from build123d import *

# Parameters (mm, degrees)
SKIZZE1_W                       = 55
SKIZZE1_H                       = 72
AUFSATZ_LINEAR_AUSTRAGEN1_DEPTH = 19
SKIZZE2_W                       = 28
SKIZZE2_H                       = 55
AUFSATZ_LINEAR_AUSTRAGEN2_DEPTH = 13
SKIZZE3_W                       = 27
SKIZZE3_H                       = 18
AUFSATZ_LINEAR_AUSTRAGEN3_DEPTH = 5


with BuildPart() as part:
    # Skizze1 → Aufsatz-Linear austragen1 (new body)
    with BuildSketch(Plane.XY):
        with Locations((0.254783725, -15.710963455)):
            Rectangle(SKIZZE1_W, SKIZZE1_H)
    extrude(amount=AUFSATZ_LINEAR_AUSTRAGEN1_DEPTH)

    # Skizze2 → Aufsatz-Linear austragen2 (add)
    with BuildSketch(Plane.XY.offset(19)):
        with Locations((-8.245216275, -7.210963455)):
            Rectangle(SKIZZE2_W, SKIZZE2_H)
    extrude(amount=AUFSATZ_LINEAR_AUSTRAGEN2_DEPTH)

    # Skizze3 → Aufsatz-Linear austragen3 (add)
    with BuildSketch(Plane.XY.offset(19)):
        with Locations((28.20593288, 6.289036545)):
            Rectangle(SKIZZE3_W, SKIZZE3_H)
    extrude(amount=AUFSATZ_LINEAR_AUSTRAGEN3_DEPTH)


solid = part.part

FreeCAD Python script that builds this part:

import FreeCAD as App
import Part
import Sketcher
from FreeCAD import Vector
Q = App.Units.Quantity

doc = App.newDocument("Part")
body = doc.addObject("PartDesign::Body", "Body")

# Sketch on XY plane
sketch1 = body.newObject("Sketcher::SketchObject", "Sketch")
sketch1.AttachmentSupport = (doc.getObject("XY_Plane"), [""])
sketch1.MapMode = "FlatFace"
sketch1.addGeometry([
    Part.LineSegment(Vector(-27.245216, 20.289037, 0), Vector(-27.245216, -51.710963, 0)),
    Part.LineSegment(Vector(-27.245216, -51.710963, 0), Vector(27.754784, -51.710963, 0)),
    Part.LineSegment(Vector(27.754784, -51.710963, 0), Vector(27.754784, 20.289037, 0)),
    Part.LineSegment(Vector(27.754784, 20.289037, 0), Vector(-27.245216, 20.289037, 0)),
], False)
sketch1.addConstraint([
    Sketcher.Constraint("Coincident", 0, 2, 1, 1),
    Sketcher.Constraint("Coincident", 1, 2, 2, 1),
    Sketcher.Constraint("Coincident", 2, 2, 3, 1),
    Sketcher.Constraint("Coincident", 3, 2, 0, 1),
    Sketcher.Constraint("Vertical", 0),
    Sketcher.Constraint("Horizontal", 1),
    Sketcher.Constraint("Vertical", 2),
    Sketcher.Constraint("Horizontal", 3),
    Sketcher.Constraint("DistanceX", 1, 1, 1, 2, Q("55 mm")),
    Sketcher.Constraint("DistanceY", 0, 2, 0, 1, Q("72 mm")),
    Sketcher.Constraint("DistanceX", 0, 2, -1, 1, Q("27.245216 mm")),
    Sketcher.Constraint("DistanceY", 0, 2, -1, 1, Q("51.710963 mm")),
])
pad1 = body.newObject("PartDesign::Pad", "Pad")
pad1.Profile = sketch1
pad1.Length = 19

# Sketch on XY plane
sketch2 = body.newObject("Sketcher::SketchObject", "Sketch001")
sketch2.AttachmentSupport = (doc.getObject("XY_Plane"), [""])
sketch2.MapMode = "FlatFace"
sketch2.AttachmentOffset = App.Placement(Vector(0, 0, 19), App.Rotation())
sketch2.addGeometry([
    Part.LineSegment(Vector(-22.245216, 20.289037, 0), Vector(-22.245216, -34.710963, 0)),
    Part.LineSegment(Vector(-22.245216, -34.710963, 0), Vector(5.754784, -34.710963, 0)),
    Part.LineSegment(Vector(5.754784, -34.710963, 0), Vector(5.754784, 20.289037, 0)),
    Part.LineSegment(Vector(5.754784, 20.289037, 0), Vector(-22.245216, 20.289037, 0)),
], False)
sketch2.addConstraint([
    Sketcher.Constraint("Coincident", 0, 2, 1, 1),
    Sketcher.Constraint("Coincident", 1, 2, 2, 1),
    Sketcher.Constraint("Coincident", 2, 2, 3, 1),
    Sketcher.Constraint("Coincident", 3, 2, 0, 1),
    Sketcher.Constraint("Vertical", 0),
    Sketcher.Constraint("Horizontal", 1),
    Sketcher.Constraint("Vertical", 2),
    Sketcher.Constraint("Horizontal", 3),
    Sketcher.Constraint("DistanceX", 1, 1, 1, 2, Q("28 mm")),
    Sketcher.Constraint("DistanceY", 0, 2, 0, 1, Q("55 mm")),
    Sketcher.Constraint("DistanceX", 0, 2, -1, 1, Q("22.245216 mm")),
    Sketcher.Constraint("DistanceY", 0, 2, -1, 1, Q("34.710963 mm")),
])
pad2 = body.newObject("PartDesign::Pad", "Pad001")
pad2.Profile = sketch2
pad2.Length = 13

# Sketch on XY plane
sketch3 = body.newObject("Sketcher::SketchObject", "Sketch002")
sketch3.AttachmentSupport = (doc.getObject("XY_Plane"), [""])
sketch3.MapMode = "FlatFace"
sketch3.AttachmentOffset = App.Placement(Vector(0, 0, 19), App.Rotation())
sketch3.addGeometry([
    Part.LineSegment(Vector(14.705933, 15.289037, 0), Vector(14.705933, -2.710963, 0)),
    Part.LineSegment(Vector(14.705933, -2.710963, 0), Vector(41.705933, -2.710963, 0)),
    Part.LineSegment(Vector(41.705933, -2.710963, 0), Vector(41.705933, 15.289037, 0)),
    Part.LineSegment(Vector(41.705933, 15.289037, 0), Vector(14.705933, 15.289037, 0)),
], False)
sketch3.addConstraint([
    Sketcher.Constraint("Coincident", 0, 2, 1, 1),
    Sketcher.Constraint("Coincident", 1, 2, 2, 1),
    Sketcher.Constraint("Coincident", 2, 2, 3, 1),
    Sketcher.Constraint("Coincident", 3, 2, 0, 1),
    Sketcher.Constraint("Vertical", 0),
    Sketcher.Constraint("Horizontal", 1),
    Sketcher.Constraint("Vertical", 2),
    Sketcher.Constraint("Horizontal", 3),
    Sketcher.Constraint("DistanceX", 1, 1, 1, 2, Q("27 mm")),
    Sketcher.Constraint("DistanceY", 0, 2, 0, 1, Q("18 mm")),
    Sketcher.Constraint("DistanceX", -1, 1, 0, 2, Q("14.705933 mm")),
    Sketcher.Constraint("DistanceY", 0, 2, -1, 1, Q("2.710963 mm")),
])
pad3 = body.newObject("PartDesign::Pad", "Pad002")
pad3.Profile = sketch3
pad3.Length = 5

doc.recompute()
